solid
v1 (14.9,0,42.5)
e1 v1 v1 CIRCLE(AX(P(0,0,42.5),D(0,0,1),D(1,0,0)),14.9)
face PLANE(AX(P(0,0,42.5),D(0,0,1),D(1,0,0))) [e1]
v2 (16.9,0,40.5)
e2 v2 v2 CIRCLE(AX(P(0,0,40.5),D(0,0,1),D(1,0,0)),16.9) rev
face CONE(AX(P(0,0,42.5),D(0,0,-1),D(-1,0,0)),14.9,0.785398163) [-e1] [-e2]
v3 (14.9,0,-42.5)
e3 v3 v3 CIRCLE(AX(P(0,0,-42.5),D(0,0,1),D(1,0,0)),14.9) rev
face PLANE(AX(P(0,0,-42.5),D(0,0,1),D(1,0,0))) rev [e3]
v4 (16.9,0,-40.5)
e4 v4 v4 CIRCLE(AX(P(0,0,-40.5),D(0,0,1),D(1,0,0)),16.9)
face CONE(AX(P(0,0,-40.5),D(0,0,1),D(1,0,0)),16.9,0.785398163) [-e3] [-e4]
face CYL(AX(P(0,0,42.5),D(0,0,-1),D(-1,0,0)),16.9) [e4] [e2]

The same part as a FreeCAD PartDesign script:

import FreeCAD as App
import Part
import Sketcher
Q = App.Units.Quantity


def edges_at(feature, points):
    """Names of the edges that pass closest to the given points."""
    edges = feature.Shape.Edges
    near = lambda p: min(range(len(edges)), key=lambda i: edges[i].distToShape(Part.Vertex(*p))[0])
    return sorted({f"Edge{near(p) + 1}" for p in points})

doc = App.newDocument("Part")
body = doc.addObject("PartDesign::Body", "Body")

# Sketch on XY plane
sketch1 = doc.addObject("Sketcher::SketchObject", "Sketch")
body.addObject(sketch1)
sketch1.AttachmentSupport = (doc.XY_Plane, [""])
sketch1.MapMode = "FlatFace"
sketch1.addGeometry(Part.Circle(App.Vector(0, 0, 0), App.Vector(0, 0, 1), 17), False)
sketch1.addConstraint(Sketcher.Constraint("Coincident", 0, 3, -1, 1))
sketch1.addConstraint(Sketcher.Constraint("Diameter", 0, Q("33.8 mm")))
pad1 = doc.addObject("PartDesign::Pad", "Pad")
body.addObject(pad1)
pad1.Profile = sketch1
pad1.Length = 85
pad1.Midplane = True
doc.recompute()

chamfer = doc.addObject("PartDesign::Chamfer", "Chamfer")
body.addObject(chamfer)
chamfer.Base = (pad1, edges_at(pad1, [(-16.9, 0, 42.5)]))
chamfer.Size = 2
doc.recompute()

chamfer2 = doc.addObject("PartDesign::Chamfer", "Chamfer001")
body.addObject(chamfer2)
chamfer2.Base = (chamfer, edges_at(chamfer, [(-16.9, 0, -42.5)]))
chamfer2.Size = 2

doc.recompute()
